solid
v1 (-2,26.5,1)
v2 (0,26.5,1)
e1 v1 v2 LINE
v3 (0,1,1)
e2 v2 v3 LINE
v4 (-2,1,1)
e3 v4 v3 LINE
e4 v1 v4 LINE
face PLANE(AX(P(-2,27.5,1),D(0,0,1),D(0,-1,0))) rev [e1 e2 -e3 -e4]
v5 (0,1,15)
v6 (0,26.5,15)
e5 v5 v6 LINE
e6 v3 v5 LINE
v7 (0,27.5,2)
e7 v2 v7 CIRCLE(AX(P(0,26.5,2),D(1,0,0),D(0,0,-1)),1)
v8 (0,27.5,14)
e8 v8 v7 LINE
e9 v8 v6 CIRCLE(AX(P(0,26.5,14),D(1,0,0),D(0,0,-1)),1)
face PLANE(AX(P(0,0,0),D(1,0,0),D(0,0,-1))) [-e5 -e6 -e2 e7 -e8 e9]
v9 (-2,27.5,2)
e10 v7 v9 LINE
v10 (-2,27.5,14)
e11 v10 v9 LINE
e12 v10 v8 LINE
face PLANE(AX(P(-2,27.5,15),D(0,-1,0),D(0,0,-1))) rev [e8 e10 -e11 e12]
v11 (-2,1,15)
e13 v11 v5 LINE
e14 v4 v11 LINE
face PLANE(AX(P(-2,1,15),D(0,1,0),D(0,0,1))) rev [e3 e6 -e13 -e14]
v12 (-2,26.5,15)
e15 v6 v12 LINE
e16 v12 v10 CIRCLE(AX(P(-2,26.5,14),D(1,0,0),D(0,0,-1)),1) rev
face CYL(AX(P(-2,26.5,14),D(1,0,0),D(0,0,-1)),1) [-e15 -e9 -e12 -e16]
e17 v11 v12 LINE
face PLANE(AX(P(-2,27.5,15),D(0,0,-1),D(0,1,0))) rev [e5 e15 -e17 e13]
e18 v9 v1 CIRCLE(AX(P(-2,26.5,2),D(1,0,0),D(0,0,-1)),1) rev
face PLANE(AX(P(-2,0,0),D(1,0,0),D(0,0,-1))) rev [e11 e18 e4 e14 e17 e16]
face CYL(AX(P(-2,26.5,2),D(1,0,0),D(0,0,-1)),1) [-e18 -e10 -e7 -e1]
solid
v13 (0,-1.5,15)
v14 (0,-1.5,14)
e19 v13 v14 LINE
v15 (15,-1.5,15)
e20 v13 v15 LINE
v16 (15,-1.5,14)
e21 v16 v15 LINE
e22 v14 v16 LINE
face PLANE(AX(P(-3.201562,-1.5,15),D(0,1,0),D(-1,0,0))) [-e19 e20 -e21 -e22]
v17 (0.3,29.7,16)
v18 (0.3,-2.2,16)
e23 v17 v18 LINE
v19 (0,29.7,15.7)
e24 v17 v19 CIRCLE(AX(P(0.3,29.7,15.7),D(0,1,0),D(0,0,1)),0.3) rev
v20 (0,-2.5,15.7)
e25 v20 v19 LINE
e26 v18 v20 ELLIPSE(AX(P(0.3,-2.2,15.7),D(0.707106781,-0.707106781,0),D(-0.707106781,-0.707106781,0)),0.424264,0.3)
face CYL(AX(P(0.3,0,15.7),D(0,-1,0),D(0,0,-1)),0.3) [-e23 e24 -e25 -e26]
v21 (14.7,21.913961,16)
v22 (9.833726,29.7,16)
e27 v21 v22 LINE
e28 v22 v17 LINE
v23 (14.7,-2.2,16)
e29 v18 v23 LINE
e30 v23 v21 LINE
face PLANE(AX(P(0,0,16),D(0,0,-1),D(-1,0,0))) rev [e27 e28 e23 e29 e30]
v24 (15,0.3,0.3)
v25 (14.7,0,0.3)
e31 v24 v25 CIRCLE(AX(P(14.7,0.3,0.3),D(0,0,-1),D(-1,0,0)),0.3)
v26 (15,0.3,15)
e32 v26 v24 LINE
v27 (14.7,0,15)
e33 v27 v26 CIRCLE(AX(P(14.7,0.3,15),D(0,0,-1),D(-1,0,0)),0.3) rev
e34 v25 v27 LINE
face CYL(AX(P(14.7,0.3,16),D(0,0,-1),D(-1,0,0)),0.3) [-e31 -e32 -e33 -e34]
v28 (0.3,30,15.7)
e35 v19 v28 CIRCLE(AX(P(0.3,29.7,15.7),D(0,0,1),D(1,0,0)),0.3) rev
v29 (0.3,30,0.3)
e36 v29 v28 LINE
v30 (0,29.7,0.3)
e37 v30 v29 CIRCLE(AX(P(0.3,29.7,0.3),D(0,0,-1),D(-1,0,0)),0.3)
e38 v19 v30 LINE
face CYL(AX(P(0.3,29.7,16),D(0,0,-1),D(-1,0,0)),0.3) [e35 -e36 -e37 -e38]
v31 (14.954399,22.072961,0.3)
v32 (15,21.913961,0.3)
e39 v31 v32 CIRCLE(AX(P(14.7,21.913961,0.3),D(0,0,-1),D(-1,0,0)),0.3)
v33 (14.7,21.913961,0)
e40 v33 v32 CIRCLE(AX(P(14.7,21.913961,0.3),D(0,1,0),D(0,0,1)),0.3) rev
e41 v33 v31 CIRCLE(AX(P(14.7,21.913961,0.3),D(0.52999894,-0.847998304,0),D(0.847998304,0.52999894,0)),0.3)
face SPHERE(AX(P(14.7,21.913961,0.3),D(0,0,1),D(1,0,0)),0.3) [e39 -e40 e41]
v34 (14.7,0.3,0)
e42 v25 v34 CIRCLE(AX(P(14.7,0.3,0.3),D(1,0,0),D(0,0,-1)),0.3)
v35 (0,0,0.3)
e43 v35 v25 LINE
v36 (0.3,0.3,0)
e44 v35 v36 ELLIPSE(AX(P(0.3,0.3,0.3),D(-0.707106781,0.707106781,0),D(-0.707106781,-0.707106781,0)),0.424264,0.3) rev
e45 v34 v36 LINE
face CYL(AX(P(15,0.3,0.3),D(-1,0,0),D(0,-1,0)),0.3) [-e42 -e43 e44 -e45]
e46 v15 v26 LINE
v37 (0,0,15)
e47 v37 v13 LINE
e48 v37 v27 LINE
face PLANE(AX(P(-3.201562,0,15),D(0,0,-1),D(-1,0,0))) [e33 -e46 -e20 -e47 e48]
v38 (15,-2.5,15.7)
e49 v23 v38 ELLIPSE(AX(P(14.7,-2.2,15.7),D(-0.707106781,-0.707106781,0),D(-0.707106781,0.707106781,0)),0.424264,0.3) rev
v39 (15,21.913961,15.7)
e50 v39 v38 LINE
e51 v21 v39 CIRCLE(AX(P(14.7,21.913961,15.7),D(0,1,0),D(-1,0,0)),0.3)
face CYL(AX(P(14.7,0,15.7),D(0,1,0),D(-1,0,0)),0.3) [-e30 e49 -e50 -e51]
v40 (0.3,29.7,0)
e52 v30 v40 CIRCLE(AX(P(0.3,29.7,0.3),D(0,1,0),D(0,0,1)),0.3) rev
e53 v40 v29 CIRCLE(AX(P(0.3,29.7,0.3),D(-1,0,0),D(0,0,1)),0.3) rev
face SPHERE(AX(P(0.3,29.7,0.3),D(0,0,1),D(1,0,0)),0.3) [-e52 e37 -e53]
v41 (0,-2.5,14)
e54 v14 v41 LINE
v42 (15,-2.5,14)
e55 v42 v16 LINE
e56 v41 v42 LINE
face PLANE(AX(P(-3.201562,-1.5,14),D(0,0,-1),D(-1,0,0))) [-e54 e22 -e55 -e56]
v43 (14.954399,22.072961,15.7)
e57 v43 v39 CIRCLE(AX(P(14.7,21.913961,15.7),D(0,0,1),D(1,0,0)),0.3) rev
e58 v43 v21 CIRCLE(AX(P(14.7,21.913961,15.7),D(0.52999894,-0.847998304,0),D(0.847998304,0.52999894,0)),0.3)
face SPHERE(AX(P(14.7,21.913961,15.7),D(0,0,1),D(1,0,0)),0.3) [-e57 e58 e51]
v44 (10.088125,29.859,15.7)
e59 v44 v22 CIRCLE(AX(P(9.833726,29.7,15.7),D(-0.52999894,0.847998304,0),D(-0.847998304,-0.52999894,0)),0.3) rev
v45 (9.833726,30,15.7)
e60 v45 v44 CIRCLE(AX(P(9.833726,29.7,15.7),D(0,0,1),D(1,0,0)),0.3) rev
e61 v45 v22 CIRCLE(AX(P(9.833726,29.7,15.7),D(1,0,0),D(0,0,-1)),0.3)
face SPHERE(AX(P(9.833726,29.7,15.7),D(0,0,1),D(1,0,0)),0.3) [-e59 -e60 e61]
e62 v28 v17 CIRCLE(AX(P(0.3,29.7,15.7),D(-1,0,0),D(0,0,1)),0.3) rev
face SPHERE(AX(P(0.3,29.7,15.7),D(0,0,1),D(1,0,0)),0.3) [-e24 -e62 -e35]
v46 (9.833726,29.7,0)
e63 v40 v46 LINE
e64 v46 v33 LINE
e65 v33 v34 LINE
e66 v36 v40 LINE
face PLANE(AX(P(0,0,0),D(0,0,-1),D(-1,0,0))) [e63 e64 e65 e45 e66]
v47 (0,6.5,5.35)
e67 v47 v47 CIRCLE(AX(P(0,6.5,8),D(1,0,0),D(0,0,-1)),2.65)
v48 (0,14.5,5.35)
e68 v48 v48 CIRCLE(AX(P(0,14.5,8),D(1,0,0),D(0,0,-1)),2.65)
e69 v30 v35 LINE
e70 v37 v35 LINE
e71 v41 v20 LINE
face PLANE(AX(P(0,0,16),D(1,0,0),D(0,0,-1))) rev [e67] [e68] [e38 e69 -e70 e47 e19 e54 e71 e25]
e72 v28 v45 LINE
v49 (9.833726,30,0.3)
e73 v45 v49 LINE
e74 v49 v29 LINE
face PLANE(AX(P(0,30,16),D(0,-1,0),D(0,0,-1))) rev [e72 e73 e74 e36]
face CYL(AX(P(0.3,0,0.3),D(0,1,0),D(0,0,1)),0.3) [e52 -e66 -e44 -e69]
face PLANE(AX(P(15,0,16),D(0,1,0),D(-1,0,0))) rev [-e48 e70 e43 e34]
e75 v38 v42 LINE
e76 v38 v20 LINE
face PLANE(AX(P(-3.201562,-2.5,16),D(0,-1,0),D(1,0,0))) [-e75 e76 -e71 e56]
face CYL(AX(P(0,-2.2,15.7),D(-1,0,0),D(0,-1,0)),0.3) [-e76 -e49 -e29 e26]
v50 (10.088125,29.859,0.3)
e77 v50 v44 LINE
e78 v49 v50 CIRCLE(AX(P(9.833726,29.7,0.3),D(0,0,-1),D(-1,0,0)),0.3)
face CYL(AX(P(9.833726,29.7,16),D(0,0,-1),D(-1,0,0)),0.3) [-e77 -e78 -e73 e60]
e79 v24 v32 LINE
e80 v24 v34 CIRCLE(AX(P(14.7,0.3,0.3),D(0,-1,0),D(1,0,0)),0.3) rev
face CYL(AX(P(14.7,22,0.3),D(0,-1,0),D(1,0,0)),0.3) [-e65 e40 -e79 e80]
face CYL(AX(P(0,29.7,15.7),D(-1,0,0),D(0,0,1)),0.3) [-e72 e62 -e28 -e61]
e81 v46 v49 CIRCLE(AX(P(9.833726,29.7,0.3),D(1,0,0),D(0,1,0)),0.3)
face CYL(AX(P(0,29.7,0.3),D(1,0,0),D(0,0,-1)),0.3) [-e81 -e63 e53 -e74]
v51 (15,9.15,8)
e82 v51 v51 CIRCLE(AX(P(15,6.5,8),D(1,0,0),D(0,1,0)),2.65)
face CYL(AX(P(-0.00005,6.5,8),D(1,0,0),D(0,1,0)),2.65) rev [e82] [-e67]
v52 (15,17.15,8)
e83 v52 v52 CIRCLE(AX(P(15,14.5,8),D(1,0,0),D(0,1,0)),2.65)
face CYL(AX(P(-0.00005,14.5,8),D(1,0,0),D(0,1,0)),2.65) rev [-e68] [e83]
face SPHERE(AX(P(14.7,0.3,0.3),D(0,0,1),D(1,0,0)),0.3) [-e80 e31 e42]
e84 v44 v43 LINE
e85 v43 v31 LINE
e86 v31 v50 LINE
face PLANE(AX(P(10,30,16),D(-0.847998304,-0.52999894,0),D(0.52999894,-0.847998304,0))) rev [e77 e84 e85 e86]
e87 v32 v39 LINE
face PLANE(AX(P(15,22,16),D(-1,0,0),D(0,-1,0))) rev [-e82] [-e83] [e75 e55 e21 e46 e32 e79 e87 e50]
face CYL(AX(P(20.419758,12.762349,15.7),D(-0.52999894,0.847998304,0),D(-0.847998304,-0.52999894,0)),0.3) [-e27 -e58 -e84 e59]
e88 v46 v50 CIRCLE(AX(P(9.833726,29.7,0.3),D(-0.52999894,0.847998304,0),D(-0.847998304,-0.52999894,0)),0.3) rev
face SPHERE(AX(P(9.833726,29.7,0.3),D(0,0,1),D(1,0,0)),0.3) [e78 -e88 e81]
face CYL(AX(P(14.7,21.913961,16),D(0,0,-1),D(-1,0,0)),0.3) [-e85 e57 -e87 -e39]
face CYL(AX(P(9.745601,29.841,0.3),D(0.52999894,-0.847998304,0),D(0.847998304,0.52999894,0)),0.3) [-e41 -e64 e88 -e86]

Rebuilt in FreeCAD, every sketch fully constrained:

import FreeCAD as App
import Part
import Sketcher
from FreeCAD import Vector
Q = App.Units.Quantity


def edges_at(feature, points):
    """Names of the edges that pass closest to the given points."""
    edges = feature.Shape.Edges
    near = lambda p: min(range(len(edges)), key=lambda i: edges[i].distToShape(Part.Vertex(*p))[0])
    return sorted({f"Edge{near(p) + 1}" for p in points})


def add_polygon(sketch, points):
    """Adds a closed chain of lines whose ends are joined by coincident constraints."""
    first, n = sketch.GeometryCount, len(points)
    for a, b in zip(points, points[1:] + points[:1]):
        sketch.addGeometry(Part.LineSegment(App.Vector(*a, 0), App.Vector(*b, 0)), False)
    for i in range(n):
        sketch.addConstraint(Sketcher.Constraint("Coincident", first + i, 2, first + (i + 1) % n, 1))

doc = App.newDocument("Part")
body = doc.addObject("PartDesign::Body", "Body")

# Sketch on XY plane
sketch1 = body.newObject("Sketcher::SketchObject", "Sketch")
sketch1.AttachmentSupport = (doc.getObject("XY_Plane"), [""])
sketch1.MapMode = "FlatFace"
add_polygon(sketch1, [(0, 30), (0, 0), (15, 0), (15, 22), (10, 30)])  # lines 0-4
sketch1.addConstraint([
    Sketcher.Constraint("Vertical", 0),
    Sketcher.Constraint("Horizontal", 1),
    Sketcher.Constraint("Vertical", 2),
    Sketcher.Constraint("Horizontal", 4),
    Sketcher.Constraint("Coincident", 0, 2, -1, 1),
    Sketcher.Constraint("DistanceX", 1, 1, 1, 2, Q("15 mm")),
    Sketcher.Constraint("DistanceX", 4, 2, 4, 1, Q("10 mm")),
    Sketcher.Constraint("DistanceY", 0, 2, 0, 1, Q("30 mm")),
    Sketcher.Constraint("DistanceY", 2, 1, 2, 2, Q("22 mm")),
])
pad1 = body.newObject("PartDesign::Pad", "Pad")
pad1.Profile = sketch1
pad1.Length = 16

# Sketch on YZ plane
sketch2 = body.newObject("Sketcher::SketchObject", "Sketch001")
sketch2.AttachmentSupport = (doc.getObject("YZ_Plane"), [""])
sketch2.MapMode = "FlatFace"
sketch2.AttachmentOffset = App.Placement(Vector(0, 0, 15), App.Rotation())
add_polygon(sketch2, [(0, 16), (-2.5, 16), (-2.5, 14), (-1.5, 14), (-1.5, 15), (0, 15)])  # lines 0-5
sketch2.addConstraint([
    Sketcher.Constraint("Horizontal", 0),
    Sketcher.Constraint("Vertical", 1),
    Sketcher.Constraint("Horizontal", 2),
    Sketcher.Constraint("Vertical", 3),
    Sketcher.Constraint("Horizontal", 4),
    Sketcher.Constraint("Vertical", 5),
    Sketcher.Constraint("PointOnObject", 4, 2, -2),
    Sketcher.Constraint("Equal", 2, 3),
    Sketcher.Constraint("Equal", 3, 5),
    Sketcher.Constraint("DistanceX", 2, 1, 2, 2, Q("1 mm")),
    Sketcher.Constraint("DistanceX", 0, 2, 0, 1, Q("2.5 mm")),
    Sketcher.Constraint("DistanceY", -1, 1, 0, 2, Q("16 mm")),
])
pad2 = body.newObject("PartDesign::Pad", "Pad001")
pad2.Profile = sketch2
pad2.Length = 15
pad2.Reversed = True

# Sketch on YZ plane
sketch3 = body.newObject("Sketcher::SketchObject", "Sketch002")
sketch3.AttachmentSupport = (doc.getObject("YZ_Plane"), [""])
sketch3.MapMode = "FlatFace"
sketch3.AttachmentOffset = App.Placement(Vector(0, 0, 15), App.Rotation())
sketch3.addGeometry([
    Part.Circle(Vector(14.5, 8, 0), Vector(0, 0, 1), 2.6),
    Part.Circle(Vector(6.5, 8, 0), Vector(0, 0, 1), 2.6),
], False)
sketch3.addConstraint([
    Sketcher.Constraint("Equal", 0, 1),
    Sketcher.Constraint("Horizontal", 0, 3, 1, 3),
    Sketcher.Constraint("Diameter", 0, Q("5.3 mm")),
    Sketcher.Constraint("DistanceY", -1, 1, 0, 3, Q("8 mm")),
    Sketcher.Constraint("DistanceX", 1, 3, 0, 3, Q("8 mm")),
    Sketcher.Constraint("DistanceX", -1, 1, 0, 3, Q("14.5 mm")),
])
pocket1 = body.newObject("PartDesign::Pocket", "Pocket")
pocket1.Profile = sketch3
pocket1.Type = "ThroughAll"
doc.recompute()

fillet = body.newObject("PartDesign::Fillet", "Fillet")
fillet.Base = (pocket1, edges_at(pocket1, [
    (12.5, 26, 16),
    (5, 30, 16),
    (0, 13.75, 16),
    (15, 0, 7.5),
    (7.5, -2.5, 16),
    (0, 15, 0),
    (5, 30, 0),
    (12.5, 26, 0),
    (15, 11, 0),
    (7.5, 0, 0),
    (15, 9.75, 16),
    (0, 30, 8),
    (10, 30, 8),
    (15, 22, 8),
]))
fillet.Radius = 0.3
body2 = doc.addObject("PartDesign::Body", "Body001")

# Sketch on YZ plane
sketch4 = body2.newObject("Sketcher::SketchObject", "Sketch003")
sketch4.AttachmentSupport = (doc.getObject("YZ_Plane001"), [""])
sketch4.MapMode = "FlatFace"
add_polygon(sketch4, [(28, 1), (1, 1), (1, 15), (28, 15)])  # lines 0-3
sketch4.addConstraint([
    Sketcher.Constraint("Horizontal", 0),
    Sketcher.Constraint("Vertical", 1),
    Sketcher.Constraint("Horizontal", 2),
    Sketcher.Constraint("Vertical", 3),
    Sketcher.Constraint("DistanceY", 1, 1, 1, 2, Q("14 mm")),
    Sketcher.Constraint("DistanceX", 0, 2, 0, 1, Q("26.5 mm")),
    Sketcher.Constraint("DistanceX", -1, 1, 0, 2, Q("1 mm")),
    Sketcher.Constraint("DistanceY", -1, 1, 0, 2, Q("1 mm")),
])
pad3 = body2.newObject("PartDesign::Pad", "Pad002")
pad3.Profile = sketch4
pad3.Length = 2
pad3.Reversed = True
doc.recompute()

fillet2 = body2.newObject("PartDesign::Fillet", "Fillet001")
fillet2.Base = (pad3, edges_at(pad3, [(-1, 27.5, 1), (-1, 27.5, 15)]))
fillet2.Radius = 1

doc.recompute()
